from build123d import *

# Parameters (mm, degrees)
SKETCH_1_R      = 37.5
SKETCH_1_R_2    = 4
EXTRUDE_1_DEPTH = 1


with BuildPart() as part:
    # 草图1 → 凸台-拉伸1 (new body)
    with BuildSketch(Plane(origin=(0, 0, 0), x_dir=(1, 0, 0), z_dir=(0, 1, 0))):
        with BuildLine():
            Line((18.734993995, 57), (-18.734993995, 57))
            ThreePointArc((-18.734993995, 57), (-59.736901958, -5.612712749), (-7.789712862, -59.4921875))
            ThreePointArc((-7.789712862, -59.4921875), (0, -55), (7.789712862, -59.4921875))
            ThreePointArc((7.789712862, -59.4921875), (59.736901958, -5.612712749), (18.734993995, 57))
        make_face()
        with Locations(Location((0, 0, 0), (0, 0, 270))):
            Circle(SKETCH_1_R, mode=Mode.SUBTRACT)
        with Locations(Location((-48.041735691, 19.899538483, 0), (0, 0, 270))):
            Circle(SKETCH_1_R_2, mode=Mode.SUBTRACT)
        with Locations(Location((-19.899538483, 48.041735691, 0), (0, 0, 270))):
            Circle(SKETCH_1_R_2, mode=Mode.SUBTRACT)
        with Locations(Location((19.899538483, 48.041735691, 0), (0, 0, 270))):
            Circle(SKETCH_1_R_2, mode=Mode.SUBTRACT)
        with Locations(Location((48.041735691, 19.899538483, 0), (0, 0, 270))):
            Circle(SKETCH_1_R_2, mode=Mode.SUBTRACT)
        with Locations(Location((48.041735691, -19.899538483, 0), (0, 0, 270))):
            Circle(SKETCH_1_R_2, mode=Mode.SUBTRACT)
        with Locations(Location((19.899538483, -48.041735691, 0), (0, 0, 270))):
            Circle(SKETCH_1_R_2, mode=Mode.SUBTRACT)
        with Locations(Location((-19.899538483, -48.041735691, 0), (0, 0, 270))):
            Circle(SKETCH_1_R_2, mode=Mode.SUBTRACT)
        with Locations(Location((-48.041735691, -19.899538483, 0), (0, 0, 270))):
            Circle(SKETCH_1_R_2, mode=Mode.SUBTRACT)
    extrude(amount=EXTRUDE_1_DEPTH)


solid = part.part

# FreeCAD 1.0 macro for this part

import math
import FreeCAD as App
import Part
import Sketcher
Q = App.Units.Quantity

doc = App.newDocument("Part")
params = doc.addObject("Spreadsheet::Sheet", "Params")
for row, (alias, value) in enumerate([
    ("sketch1_diameter", "8 mm"),
    ("sketch1_diameter2", "75 mm"),
    ("sketch1_radius", "60 mm"),
    ("sketch1_radius2", "9 mm"),
    ("pad1_length", "1 mm"),
], start=1):
    params.set(f"A{row}", alias)
    params.set(f"B{row}", "=" + value)
    params.setAlias(f"B{row}", alias)

body = doc.addObject("PartDesign::Body", "Body")

# Sketch on XZ plane
sketch1 = doc.addObject("Sketcher::SketchObject", "Sketch")
body.addObject(sketch1)
sketch1.AttachmentSupport = (doc.XZ_Plane, [""])
sketch1.MapMode = "FlatFace"
sketch1.addGeometry([
    Part.LineSegment(App.Vector(18.7, -57, 0), App.Vector(-18.7, -57, 0)),  # 0
    Part.ArcOfCircle(Part.Circle(App.Vector(0, 0, 0), App.Vector(0, 0, 1), 60), math.radians(97), math.radians(252)),  # 1
    Part.ArcOfCircle(Part.Circle(App.Vector(0, 64, 0), App.Vector(0, 0, 1), 9), math.radians(-150), math.radians(-30)),  # 2
    Part.ArcOfCircle(Part.Circle(App.Vector(0, 0, 0), App.Vector(0, 0, 1), 60), math.radians(-72), math.radians(83)),  # 3
    Part.Circle(App.Vector(-19.9, 48, 0), App.Vector(0, 0, 1), 4),  # 4
    Part.Circle(App.Vector(-48, 19.9, 0), App.Vector(0, 0, 1), 4),  # 5
    Part.Circle(App.Vector(0, 0, 0), App.Vector(0, 0, 1), 37.5),  # 6
    Part.Circle(App.Vector(19.9, 48, 0), App.Vector(0, 0, 1), 4),  # 7
    Part.Circle(App.Vector(48, 19.9, 0), App.Vector(0, 0, 1), 4),  # 8
    Part.Circle(App.Vector(-48, -19.9, 0), App.Vector(0, 0, 1), 4),  # 9
    Part.Circle(App.Vector(-19.9, -48, 0), App.Vector(0, 0, 1), 4),  # 10
    Part.Circle(App.Vector(48, -19.9, 0), App.Vector(0, 0, 1), 4),  # 11
    Part.Circle(App.Vector(19.9, -48, 0), App.Vector(0, 0, 1), 4),  # 12
], False)
sketch1.addConstraint([
    Sketcher.Constraint("Coincident", 0, 2, 1, 2),
    Sketcher.Constraint("Coincident", 1, 1, 2, 1),
    Sketcher.Constraint("Coincident", 2, 2, 3, 2),
    Sketcher.Constraint("Coincident", 3, 1, 0, 1),
    Sketcher.Constraint("Horizontal", 0),
    Sketcher.Constraint("Coincident", 1, 3, -1, 1),
    Sketcher.Constraint("Coincident", 3, 3, -1, 1),
    Sketcher.Constraint("Coincident", 6, 3, -1, 1),
    Sketcher.Constraint("Equal", 1, 3),
    Sketcher.Constraint("Equal", 4, 5),
    Sketcher.Constraint("Equal", 5, 7),
    Sketcher.Constraint("Equal", 7, 8),
    Sketcher.Constraint("Equal", 8, 9),
    Sketcher.Constraint("Equal", 9, 10),
    Sketcher.Constraint("Equal", 10, 11),
    Sketcher.Constraint("Equal", 11, 12),
    Sketcher.Constraint("Symmetric", 8, 3, 9, 3, -1, 1),
    Sketcher.Constraint("Symmetric", 7, 3, 10, 3, -1, 1),
    Sketcher.Constraint("Symmetric", 5, 3, 11, 3, -1, 1),
    Sketcher.Constraint("Symmetric", 4, 3, 12, 3, -1, 1),
    Sketcher.Constraint("Symmetric", 4, 3, 7, 3, -2),
    Sketcher.Constraint("Symmetric", 5, 3, 8, 3, -2),
    Sketcher.Constraint("PointOnObject", 2, 3, -2),
    Sketcher.Constraint("Diameter", 4, Q("8 mm")),
    Sketcher.Constraint("Diameter", 6, Q("75 mm")),
    Sketcher.Constraint("Radius", 1, Q("60 mm")),
    Sketcher.Constraint("Radius", 2, Q("9 mm")),
    Sketcher.Constraint("DistanceY", -1, 1, 2, 3, Q("64 mm")),
    Sketcher.Constraint("DistanceY", 0, 2, -1, 1, Q("57 mm")),
    Sketcher.Constraint("DistanceX", 4, 3, -1, 1, Q("19.899538 mm")),
    Sketcher.Constraint("DistanceY", -1, 1, 5, 3, Q("19.899538 mm")),
    Sketcher.Constraint("DistanceX", 9, 3, 0, 2, Q("29.306742 mm")),
    Sketcher.Constraint("DistanceY", 4, 3, 1, 1, Q("11.450452 mm")),
])
sketch1.setExpression("Constraints[23]", "Params.sketch1_diameter")
sketch1.setExpression("Constraints[24]", "Params.sketch1_diameter2")
sketch1.setExpression("Constraints[25]", "Params.sketch1_radius")
sketch1.setExpression("Constraints[26]", "Params.sketch1_radius2")
pad1 = doc.addObject("PartDesign::Pad", "Pad")
body.addObject(pad1)
pad1.Profile = sketch1
pad1.setExpression("Length", "Params.pad1_length")
pad1.Reversed = True

doc.recompute()
